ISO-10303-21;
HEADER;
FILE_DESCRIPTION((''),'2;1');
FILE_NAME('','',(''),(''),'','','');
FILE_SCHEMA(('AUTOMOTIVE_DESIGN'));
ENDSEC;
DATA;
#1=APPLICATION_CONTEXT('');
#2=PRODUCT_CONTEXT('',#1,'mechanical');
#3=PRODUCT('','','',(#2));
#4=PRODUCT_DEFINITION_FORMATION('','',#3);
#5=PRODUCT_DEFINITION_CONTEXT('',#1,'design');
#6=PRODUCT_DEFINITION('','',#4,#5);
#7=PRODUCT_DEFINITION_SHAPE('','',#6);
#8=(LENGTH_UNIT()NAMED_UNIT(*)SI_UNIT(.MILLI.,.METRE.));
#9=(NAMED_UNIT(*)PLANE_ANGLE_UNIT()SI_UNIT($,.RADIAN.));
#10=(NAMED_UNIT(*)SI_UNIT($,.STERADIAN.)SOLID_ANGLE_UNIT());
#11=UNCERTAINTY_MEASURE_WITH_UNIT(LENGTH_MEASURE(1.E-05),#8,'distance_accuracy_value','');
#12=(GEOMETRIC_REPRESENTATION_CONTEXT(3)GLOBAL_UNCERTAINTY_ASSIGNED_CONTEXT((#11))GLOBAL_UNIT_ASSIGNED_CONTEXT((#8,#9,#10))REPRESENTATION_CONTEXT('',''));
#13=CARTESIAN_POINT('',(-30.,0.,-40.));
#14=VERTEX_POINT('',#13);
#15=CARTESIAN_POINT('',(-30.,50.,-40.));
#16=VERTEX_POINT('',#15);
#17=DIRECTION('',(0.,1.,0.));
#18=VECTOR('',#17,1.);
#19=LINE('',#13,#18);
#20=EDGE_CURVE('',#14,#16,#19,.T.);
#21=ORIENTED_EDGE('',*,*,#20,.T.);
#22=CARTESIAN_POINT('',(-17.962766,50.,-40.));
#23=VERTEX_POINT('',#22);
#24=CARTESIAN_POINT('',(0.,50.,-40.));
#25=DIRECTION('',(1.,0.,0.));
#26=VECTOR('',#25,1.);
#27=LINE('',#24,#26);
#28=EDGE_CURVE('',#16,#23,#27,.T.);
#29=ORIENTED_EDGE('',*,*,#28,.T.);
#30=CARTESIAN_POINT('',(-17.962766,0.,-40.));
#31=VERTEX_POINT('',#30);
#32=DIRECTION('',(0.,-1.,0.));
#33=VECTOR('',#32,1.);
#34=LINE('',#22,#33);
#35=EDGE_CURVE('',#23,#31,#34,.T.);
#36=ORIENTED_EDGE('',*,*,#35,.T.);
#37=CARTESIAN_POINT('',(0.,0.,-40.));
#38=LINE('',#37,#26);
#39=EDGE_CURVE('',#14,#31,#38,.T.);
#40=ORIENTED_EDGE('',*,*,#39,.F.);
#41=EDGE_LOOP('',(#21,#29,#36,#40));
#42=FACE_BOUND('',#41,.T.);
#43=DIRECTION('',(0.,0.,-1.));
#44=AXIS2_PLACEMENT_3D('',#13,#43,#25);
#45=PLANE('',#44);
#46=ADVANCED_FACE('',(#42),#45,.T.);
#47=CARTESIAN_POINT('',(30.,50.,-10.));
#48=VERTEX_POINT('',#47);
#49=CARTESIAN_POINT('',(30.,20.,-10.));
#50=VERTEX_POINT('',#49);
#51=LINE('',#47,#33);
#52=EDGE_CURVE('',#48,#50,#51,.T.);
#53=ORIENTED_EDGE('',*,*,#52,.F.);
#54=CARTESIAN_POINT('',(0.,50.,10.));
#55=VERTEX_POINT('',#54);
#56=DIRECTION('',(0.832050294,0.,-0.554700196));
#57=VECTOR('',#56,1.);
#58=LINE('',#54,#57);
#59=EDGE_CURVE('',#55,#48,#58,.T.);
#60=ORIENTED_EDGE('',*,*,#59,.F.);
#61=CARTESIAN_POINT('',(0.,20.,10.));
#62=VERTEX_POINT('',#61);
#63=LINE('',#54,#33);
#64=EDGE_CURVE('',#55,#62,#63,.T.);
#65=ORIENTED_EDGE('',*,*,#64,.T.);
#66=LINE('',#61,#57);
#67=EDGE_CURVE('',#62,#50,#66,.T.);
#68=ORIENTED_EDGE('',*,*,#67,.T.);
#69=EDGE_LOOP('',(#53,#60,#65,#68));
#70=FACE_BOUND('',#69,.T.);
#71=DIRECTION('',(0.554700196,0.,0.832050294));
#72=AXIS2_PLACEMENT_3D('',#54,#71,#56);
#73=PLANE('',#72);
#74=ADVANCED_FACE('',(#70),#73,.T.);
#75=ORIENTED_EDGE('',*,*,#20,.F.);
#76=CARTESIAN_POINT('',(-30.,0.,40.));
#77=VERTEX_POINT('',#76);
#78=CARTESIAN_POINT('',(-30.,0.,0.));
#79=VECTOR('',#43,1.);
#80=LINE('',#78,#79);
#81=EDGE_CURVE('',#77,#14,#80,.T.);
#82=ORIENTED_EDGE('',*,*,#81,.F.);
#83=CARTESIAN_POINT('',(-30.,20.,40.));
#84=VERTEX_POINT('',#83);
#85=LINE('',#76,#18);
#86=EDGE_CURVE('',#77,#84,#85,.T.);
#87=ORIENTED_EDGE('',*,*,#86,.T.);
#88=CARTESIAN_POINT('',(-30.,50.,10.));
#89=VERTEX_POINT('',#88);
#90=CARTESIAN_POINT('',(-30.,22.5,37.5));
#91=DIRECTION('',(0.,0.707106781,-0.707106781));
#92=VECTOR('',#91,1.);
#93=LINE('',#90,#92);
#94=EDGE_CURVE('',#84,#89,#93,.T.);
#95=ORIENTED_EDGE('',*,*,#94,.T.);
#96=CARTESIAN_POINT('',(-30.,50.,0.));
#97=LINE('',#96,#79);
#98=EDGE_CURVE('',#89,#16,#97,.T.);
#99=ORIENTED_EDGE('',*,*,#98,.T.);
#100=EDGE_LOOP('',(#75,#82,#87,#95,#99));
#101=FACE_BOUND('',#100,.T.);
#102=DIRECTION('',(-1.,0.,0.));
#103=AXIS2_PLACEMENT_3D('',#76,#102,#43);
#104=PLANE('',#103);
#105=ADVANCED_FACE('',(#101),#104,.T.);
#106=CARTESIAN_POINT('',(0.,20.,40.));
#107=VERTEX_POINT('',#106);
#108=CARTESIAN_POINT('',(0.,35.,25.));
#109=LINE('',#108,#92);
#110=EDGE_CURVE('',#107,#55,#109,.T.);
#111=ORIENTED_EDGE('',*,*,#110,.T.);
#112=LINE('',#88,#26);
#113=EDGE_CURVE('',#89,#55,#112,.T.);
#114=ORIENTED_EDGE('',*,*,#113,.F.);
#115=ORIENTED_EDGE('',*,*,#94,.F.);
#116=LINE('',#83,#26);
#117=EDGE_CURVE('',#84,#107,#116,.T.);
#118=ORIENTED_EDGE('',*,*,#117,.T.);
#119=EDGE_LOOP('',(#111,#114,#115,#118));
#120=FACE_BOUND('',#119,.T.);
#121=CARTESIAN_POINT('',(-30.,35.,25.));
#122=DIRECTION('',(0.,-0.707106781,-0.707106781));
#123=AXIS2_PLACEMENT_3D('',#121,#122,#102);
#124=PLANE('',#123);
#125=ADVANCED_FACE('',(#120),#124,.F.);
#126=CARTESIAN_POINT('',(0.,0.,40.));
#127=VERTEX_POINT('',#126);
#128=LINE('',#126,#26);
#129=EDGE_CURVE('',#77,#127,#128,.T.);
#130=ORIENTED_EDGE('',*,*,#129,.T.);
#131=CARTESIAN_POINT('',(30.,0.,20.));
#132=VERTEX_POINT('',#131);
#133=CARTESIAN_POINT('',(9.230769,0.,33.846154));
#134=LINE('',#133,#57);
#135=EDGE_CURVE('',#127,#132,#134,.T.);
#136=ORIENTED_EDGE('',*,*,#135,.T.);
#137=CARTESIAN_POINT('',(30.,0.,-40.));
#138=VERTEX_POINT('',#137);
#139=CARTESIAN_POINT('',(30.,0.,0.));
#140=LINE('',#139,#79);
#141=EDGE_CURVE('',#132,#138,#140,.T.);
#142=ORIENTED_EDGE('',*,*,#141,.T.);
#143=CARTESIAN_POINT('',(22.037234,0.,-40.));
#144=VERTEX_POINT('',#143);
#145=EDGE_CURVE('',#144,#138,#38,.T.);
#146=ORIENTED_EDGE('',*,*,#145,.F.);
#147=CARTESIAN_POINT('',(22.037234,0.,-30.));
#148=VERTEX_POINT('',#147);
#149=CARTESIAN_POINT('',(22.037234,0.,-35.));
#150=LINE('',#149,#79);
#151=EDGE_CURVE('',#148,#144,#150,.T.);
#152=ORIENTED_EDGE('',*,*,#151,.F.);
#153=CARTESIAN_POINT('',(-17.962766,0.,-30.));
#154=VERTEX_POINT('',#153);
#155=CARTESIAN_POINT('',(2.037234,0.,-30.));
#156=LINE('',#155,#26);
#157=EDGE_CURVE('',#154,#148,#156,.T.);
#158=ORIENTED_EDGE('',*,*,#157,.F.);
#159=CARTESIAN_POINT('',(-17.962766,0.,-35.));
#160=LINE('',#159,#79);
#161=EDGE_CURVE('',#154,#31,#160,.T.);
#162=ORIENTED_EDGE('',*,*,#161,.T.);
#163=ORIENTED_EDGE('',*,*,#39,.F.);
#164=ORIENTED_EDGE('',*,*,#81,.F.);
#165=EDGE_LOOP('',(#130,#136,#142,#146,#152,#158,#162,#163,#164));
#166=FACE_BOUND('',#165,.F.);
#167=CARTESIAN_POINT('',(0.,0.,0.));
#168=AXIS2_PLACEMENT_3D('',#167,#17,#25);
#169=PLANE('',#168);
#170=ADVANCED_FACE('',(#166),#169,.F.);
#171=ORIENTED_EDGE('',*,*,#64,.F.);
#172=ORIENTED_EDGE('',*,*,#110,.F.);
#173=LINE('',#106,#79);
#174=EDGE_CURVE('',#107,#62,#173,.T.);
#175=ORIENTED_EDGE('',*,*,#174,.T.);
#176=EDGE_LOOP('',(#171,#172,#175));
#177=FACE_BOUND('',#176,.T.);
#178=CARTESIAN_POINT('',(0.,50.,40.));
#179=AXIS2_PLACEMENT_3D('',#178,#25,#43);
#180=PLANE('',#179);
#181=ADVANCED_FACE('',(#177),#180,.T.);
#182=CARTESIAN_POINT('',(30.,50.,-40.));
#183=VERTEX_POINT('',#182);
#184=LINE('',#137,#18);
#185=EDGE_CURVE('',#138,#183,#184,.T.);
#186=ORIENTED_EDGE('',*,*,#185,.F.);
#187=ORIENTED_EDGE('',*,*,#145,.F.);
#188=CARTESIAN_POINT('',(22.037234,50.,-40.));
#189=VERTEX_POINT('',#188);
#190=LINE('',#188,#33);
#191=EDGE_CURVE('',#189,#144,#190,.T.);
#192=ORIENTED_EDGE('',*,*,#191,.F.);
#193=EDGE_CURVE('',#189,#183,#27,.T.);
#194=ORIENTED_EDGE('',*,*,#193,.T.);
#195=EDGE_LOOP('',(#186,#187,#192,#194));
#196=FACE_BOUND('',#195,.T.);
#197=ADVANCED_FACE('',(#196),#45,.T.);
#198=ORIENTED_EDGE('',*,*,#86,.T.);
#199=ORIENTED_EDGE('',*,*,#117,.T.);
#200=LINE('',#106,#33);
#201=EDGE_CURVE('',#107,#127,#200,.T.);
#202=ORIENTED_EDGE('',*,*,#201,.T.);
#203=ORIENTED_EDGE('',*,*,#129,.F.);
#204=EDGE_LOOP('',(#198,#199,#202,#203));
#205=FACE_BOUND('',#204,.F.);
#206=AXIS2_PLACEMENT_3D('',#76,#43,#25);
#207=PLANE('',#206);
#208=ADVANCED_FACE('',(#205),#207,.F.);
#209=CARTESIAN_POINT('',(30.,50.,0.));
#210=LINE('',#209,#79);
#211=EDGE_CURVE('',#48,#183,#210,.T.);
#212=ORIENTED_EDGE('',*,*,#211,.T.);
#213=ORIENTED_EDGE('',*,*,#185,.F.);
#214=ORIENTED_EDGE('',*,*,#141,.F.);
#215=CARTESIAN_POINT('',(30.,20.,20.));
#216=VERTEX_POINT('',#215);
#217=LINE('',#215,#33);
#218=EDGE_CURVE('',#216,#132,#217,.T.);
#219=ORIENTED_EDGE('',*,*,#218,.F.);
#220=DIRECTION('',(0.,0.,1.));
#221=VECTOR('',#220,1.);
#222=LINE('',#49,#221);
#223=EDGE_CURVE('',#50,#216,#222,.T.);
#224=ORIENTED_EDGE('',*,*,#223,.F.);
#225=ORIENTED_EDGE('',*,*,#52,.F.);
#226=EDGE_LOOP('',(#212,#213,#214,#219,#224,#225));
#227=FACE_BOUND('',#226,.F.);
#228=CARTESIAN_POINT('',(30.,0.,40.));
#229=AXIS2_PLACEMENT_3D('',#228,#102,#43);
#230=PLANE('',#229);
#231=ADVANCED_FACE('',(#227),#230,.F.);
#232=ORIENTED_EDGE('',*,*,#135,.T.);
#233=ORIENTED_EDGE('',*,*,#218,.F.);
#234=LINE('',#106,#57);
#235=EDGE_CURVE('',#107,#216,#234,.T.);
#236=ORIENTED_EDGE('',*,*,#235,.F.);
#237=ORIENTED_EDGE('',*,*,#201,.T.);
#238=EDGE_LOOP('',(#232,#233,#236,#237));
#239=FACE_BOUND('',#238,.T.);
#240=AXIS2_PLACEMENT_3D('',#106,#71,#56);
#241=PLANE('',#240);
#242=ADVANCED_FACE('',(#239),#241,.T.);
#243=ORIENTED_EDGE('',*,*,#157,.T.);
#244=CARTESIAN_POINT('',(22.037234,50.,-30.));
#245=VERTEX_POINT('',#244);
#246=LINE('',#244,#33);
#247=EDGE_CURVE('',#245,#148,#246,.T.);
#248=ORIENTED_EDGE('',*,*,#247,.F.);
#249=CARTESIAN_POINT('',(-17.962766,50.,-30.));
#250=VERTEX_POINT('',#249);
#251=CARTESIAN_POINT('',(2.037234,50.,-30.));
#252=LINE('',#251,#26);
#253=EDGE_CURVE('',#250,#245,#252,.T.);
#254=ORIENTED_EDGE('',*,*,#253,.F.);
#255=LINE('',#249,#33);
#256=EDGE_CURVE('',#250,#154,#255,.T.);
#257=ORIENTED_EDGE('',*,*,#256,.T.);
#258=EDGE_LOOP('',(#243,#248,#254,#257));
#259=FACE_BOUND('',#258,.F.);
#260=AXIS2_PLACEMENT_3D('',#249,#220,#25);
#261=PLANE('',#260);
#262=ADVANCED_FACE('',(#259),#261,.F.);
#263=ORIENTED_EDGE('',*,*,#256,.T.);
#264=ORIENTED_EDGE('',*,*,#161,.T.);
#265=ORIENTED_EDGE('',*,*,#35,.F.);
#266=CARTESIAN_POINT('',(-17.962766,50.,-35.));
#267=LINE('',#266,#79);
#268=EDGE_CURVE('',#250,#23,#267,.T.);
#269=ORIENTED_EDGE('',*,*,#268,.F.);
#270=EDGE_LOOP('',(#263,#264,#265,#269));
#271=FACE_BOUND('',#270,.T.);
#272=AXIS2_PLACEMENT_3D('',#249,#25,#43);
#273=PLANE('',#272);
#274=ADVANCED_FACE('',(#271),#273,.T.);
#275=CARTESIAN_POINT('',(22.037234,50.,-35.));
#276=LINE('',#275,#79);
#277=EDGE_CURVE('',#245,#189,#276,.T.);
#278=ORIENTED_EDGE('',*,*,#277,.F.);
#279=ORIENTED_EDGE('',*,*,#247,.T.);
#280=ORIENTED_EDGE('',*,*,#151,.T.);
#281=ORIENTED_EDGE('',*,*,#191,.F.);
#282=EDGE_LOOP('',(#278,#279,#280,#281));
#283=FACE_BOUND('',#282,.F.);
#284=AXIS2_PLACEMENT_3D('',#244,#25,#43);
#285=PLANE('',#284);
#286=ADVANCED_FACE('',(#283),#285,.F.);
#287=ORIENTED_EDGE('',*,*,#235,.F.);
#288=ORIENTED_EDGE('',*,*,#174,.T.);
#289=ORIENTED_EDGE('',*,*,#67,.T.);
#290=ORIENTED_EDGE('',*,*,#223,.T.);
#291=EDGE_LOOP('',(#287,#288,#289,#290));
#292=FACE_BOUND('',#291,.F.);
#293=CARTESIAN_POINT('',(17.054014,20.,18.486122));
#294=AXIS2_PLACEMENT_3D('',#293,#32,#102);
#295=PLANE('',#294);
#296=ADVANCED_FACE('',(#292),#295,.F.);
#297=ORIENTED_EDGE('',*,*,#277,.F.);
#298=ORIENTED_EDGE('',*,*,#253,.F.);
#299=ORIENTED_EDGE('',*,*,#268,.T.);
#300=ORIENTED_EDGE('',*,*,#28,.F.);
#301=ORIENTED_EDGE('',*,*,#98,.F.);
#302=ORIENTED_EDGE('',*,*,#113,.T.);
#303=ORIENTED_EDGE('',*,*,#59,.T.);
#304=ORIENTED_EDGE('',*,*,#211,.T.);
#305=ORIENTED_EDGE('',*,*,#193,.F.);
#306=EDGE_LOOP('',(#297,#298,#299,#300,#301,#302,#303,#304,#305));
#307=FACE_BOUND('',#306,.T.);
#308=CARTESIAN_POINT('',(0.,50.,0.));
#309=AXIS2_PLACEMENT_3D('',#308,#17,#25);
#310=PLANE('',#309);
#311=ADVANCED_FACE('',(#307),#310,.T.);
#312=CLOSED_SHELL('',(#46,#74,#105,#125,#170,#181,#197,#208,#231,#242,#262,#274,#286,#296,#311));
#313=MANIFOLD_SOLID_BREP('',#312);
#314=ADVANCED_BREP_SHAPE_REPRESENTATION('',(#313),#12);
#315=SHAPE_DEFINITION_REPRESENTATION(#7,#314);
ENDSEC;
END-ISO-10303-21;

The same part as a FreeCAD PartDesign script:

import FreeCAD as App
import Part
import Sketcher

V = App.Vector
Q = App.Units.Quantity


def edges_at(feature, points):
    """Names of the edges that pass closest to the given points."""
    edges = feature.Shape.Edges
    near = lambda p: min(range(len(edges)), key=lambda i: edges[i].distToShape(Part.Vertex(*p))[0])
    return sorted({f"Edge{near(p) + 1}" for p in points})


def add_polygon(sketch, points):
    """Adds a closed chain of lines whose ends are joined by coincident constraints."""
    first, n = sketch.GeometryCount, len(points)
    for a, b in zip(points, points[1:] + points[:1]):
        sketch.addGeometry(Part.LineSegment(App.Vector(*a, 0), App.Vector(*b, 0)), False)
    for i in range(n):
        sketch.addConstraint(Sketcher.Constraint("Coincident", first + i, 2, first + (i + 1) % n, 1))

doc = App.newDocument("Part")
body = doc.addObject("PartDesign::Body", "Body")

# Sketch on XZ plane
sketch1 = body.newObject("Sketcher::SketchObject", "Sketch")
sketch1.AttachmentSupport = (doc.getObject("XZ_Plane"), [""])
sketch1.MapMode = "FlatFace"
add_polygon(sketch1, [(-30, -40), (-30, 40), (30, 40), (30, -40)])  # lines 0-3
sketch1.addConstraint(Sketcher.Constraint("Vertical", 0))
sketch1.addConstraint(Sketcher.Constraint("Horizontal", 1))
sketch1.addConstraint(Sketcher.Constraint("Vertical", 2))
sketch1.addConstraint(Sketcher.Constraint("Horizontal", 3))
sketch1.addConstraint(Sketcher.Constraint("Symmetric", 0, 2, 2, 2, -1, 1))
sketch1.addConstraint(Sketcher.Constraint("DistanceX", 1, 1, 1, 2, Q("60 mm")))
sketch1.addConstraint(Sketcher.Constraint("DistanceY", 0, 1, 0, 2, Q("80 mm")))
pad1 = body.newObject("PartDesign::Pad", "Pad")
pad1.Profile = sketch1
pad1.Length = 50
pad1.Reversed = True

# Sketch on XZ plane
sketch2 = body.newObject("Sketcher::SketchObject", "Sketch001")
sketch2.AttachmentSupport = (doc.getObject("XZ_Plane"), [""])
sketch2.MapMode = "FlatFace"
sketch2.AttachmentOffset = App.Placement(V(0, 0, -50), App.Rotation())
add_polygon(sketch2, [(-17.962766, -40), (-17.962766, -30), (22.037234, -30), (22.037234, -40)])  # lines 0-3
sketch2.addConstraint(Sketcher.Constraint("Vertical", 0))
sketch2.addConstraint(Sketcher.Constraint("Horizontal", 1))
sketch2.addConstraint(Sketcher.Constraint("Vertical", 2))
sketch2.addConstraint(Sketcher.Constraint("Horizontal", 3))
sketch2.addConstraint(Sketcher.Constraint("DistanceX", 1, 1, 1, 2, Q("40 mm")))
sketch2.addConstraint(Sketcher.Constraint("DistanceY", 0, 1, 0, 2, Q("10 mm")))
sketch2.addConstraint(Sketcher.Constraint("DistanceY", 0, 2, -1, 1, Q("30 mm")))
sketch2.addConstraint(Sketcher.Constraint("DistanceX", 0, 2, -1, 1, Q("17.962766 mm")))
pocket1 = body.newObject("PartDesign::Pocket", "Pocket")
pocket1.Profile = sketch2
pocket1.Length = 50
pocket1.Reversed = True

# Sketch on XZ plane
sketch3 = body.newObject("Sketcher::SketchObject", "Sketch002")
sketch3.AttachmentSupport = (doc.getObject("XZ_Plane"), [""])
sketch3.MapMode = "FlatFace"
sketch3.AttachmentOffset = App.Placement(V(0, 0, -50), App.Rotation())
add_polygon(sketch3, [(30, -10), (0, 10), (0, 40), (30, 40)])  # lines 0-3
sketch3.addConstraint(Sketcher.Constraint("Vertical", 1))
sketch3.addConstraint(Sketcher.Constraint("Horizontal", 2))
sketch3.addConstraint(Sketcher.Constraint("Vertical", 3))
sketch3.addConstraint(Sketcher.Constraint("PointOnObject", 0, 2, -2))
sketch3.addConstraint(Sketcher.Constraint("Equal", 2, 1))
sketch3.addConstraint(Sketcher.Constraint("DistanceX", 2, 1, 2, 2, Q("30 mm")))
sketch3.addConstraint(Sketcher.Constraint("DistanceY", 3, 2, 3, 1, Q("50 mm")))
sketch3.addConstraint(Sketcher.Constraint("DistanceY", -1, 1, 0, 2, Q("10 mm")))
pocket2 = body.newObject("PartDesign::Pocket", "Pocket001")
pocket2.Profile = sketch3
pocket2.Length = 30
pocket2.Reversed = True

# Sketch on XZ plane
sketch4 = body.newObject("Sketcher::SketchObject", "Sketch003")
sketch4.AttachmentSupport = (doc.getObject("XZ_Plane"), [""])
sketch4.MapMode = "FlatFace"
sketch4.AttachmentOffset = App.Placement(V(0, 0, -20), App.Rotation())
add_polygon(sketch4, [(30, 20), (0, 40), (30, 40)])  # lines 0-2
sketch4.addConstraint(Sketcher.Constraint("Horizontal", 1))
sketch4.addConstraint(Sketcher.Constraint("Vertical", 2))
sketch4.addConstraint(Sketcher.Constraint("PointOnObject", 0, 2, -2))
sketch4.addConstraint(Sketcher.Constraint("DistanceX", 1, 1, 1, 2, Q("30 mm")))
sketch4.addConstraint(Sketcher.Constraint("DistanceY", 2, 2, 2, 1, Q("20 mm")))
sketch4.addConstraint(Sketcher.Constraint("DistanceY", -1, 1, 0, 2, Q("40 mm")))
pocket3 = body.newObject("PartDesign::Pocket", "Pocket002")
pocket3.Profile = sketch4
pocket3.Length = 30
pocket3.Reversed = True
doc.recompute()

chamfer = body.newObject("PartDesign::Chamfer", "Chamfer")
chamfer.Base = (pocket3, edges_at(pocket3, [(-15, 50, 40)]))
chamfer.Size = 30

doc.recompute()
